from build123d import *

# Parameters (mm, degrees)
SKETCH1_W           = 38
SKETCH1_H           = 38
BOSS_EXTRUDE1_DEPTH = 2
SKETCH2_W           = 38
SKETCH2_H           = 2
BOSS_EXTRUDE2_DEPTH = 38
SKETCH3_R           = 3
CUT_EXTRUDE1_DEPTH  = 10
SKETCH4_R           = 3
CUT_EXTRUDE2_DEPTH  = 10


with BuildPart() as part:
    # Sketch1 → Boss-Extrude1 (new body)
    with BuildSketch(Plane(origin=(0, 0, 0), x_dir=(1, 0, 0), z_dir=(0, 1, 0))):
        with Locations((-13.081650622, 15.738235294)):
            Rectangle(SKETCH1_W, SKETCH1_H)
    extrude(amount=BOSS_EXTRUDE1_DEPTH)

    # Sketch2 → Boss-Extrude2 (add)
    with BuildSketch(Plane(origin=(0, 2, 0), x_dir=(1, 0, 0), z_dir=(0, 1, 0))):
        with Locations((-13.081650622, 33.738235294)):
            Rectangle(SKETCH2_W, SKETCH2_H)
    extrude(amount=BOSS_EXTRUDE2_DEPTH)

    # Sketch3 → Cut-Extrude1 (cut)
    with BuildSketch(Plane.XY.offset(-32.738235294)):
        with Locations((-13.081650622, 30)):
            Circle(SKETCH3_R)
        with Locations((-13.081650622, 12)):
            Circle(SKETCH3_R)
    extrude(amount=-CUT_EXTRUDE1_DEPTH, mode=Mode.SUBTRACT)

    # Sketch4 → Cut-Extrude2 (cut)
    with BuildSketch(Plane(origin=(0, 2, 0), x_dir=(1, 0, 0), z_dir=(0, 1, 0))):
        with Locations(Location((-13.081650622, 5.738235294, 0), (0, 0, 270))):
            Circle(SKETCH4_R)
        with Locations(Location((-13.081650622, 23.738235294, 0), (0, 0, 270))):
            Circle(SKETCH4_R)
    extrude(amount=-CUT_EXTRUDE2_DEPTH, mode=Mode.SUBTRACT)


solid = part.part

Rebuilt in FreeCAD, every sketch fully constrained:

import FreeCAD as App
import Part
import Sketcher
from FreeCAD import Vector
Q = App.Units.Quantity

doc = App.newDocument("Part")
params = doc.addObject("Spreadsheet::Sheet", "Params")
for row, (alias, value) in enumerate([
    ("sketch1_width", "38 mm"),
    ("pad1_length", "2 mm"),
    ("sketch2_width", "38 mm"),
    ("sketch2_height", "2 mm"),
    ("pad2_length", "38 mm"),
    ("sketch3_diameter", "6 mm"),
    ("pocket1_length", "10 mm"),
    ("sketch4_diameter", "6 mm"),
    ("pocket2_length", "10 mm"),
], start=1):
    params.set(f"A{row}", alias)
    params.set(f"B{row}", "=" + value)
    params.setAlias(f"B{row}", alias)

body = doc.addObject("PartDesign::Body", "Body")

# Sketch on XZ plane
sketch1 = body.newObject("Sketcher::SketchObject", "Sketch")
sketch1.AttachmentSupport = (doc.getObject("XZ_Plane"), [""])
sketch1.MapMode = "FlatFace"
sketch1.addGeometry([
    Part.LineSegment(Vector(-32, -35, 0), Vector(-32, 3, 0)),
    Part.LineSegment(Vector(-32, 3, 0), Vector(6, 3, 0)),
    Part.LineSegment(Vector(6, 3, 0), Vector(6, -35, 0)),
    Part.LineSegment(Vector(6, -35, 0), Vector(-32, -35, 0)),
], False)
sketch1.addConstraint([
    Sketcher.Constraint("Coincident", 0, 2, 1, 1),
    Sketcher.Constraint("Coincident", 1, 2, 2, 1),
    Sketcher.Constraint("Coincident", 2, 2, 3, 1),
    Sketcher.Constraint("Coincident", 3, 2, 0, 1),
    Sketcher.Constraint("Vertical", 0),
    Sketcher.Constraint("Horizontal", 1),
    Sketcher.Constraint("Vertical", 2),
    Sketcher.Constraint("Horizontal", 3),
    Sketcher.Constraint("Equal", 3, 0),
    Sketcher.Constraint("DistanceX", 1, 1, 1, 2, Q("38 mm")),
    Sketcher.Constraint("DistanceX", 0, 2, -1, 1, Q("32.081651 mm")),
    Sketcher.Constraint("DistanceY", -1, 1, 0, 2, Q("3.261765 mm")),
])
sketch1.setExpression("Constraints[9]", "Params.sketch1_width")
pad1 = body.newObject("PartDesign::Pad", "Pad")
pad1.Profile = sketch1
pad1.setExpression("Length", "Params.pad1_length")
pad1.Reversed = True

# Sketch on XZ plane
sketch2 = body.newObject("Sketcher::SketchObject", "Sketch001")
sketch2.AttachmentSupport = (doc.getObject("XZ_Plane"), [""])
sketch2.MapMode = "FlatFace"
sketch2.AttachmentOffset = App.Placement(Vector(0, 0, -2), App.Rotation())
sketch2.addGeometry([
    Part.LineSegment(Vector(-32.1, -34.7, 0), Vector(-32.1, -32.7, 0)),
    Part.LineSegment(Vector(-32.1, -32.7, 0), Vector(5.9, -32.7, 0)),
    Part.LineSegment(Vector(5.9, -32.7, 0), Vector(5.9, -34.7, 0)),
    Part.LineSegment(Vector(5.9, -34.7, 0), Vector(-32.1, -34.7, 0)),
], False)
sketch2.addConstraint([
    Sketcher.Constraint("Coincident", 0, 2, 1, 1),
    Sketcher.Constraint("Coincident", 1, 2, 2, 1),
    Sketcher.Constraint("Coincident", 2, 2, 3, 1),
    Sketcher.Constraint("Coincident", 3, 2, 0, 1),
    Sketcher.Constraint("Vertical", 0),
    Sketcher.Constraint("Horizontal", 1),
    Sketcher.Constraint("Vertical", 2),
    Sketcher.Constraint("Horizontal", 3),
    Sketcher.Constraint("DistanceX", 1, 1, 1, 2, Q("38 mm")),
    Sketcher.Constraint("DistanceY", 0, 1, 0, 2, Q("2 mm")),
    Sketcher.Constraint("DistanceX", 0, 2, -1, 1, Q("32.081651 mm")),
    Sketcher.Constraint("DistanceY", 0, 2, -1, 1, Q("32.738235 mm")),
])
sketch2.setExpression("Constraints[8]", "Params.sketch2_width")
sketch2.setExpression("Constraints[9]", "Params.sketch2_height")
pad2 = body.newObject("PartDesign::Pad", "Pad001")
pad2.Profile = sketch2
pad2.setExpression("Length", "Params.pad2_length")
pad2.Reversed = True

# Sketch on XY plane
sketch3 = body.newObject("Sketcher::SketchObject", "Sketch002")
sketch3.AttachmentSupport = (doc.getObject("XY_Plane"), [""])
sketch3.MapMode = "FlatFace"
sketch3.AttachmentOffset = App.Placement(Vector(0, 0, -32.738235), App.Rotation())
sketch3.addGeometry([
    Part.Circle(Vector(-13.1, 30, 0), Vector(0, 0, 1), 3),
    Part.Circle(Vector(-13.1, 12, 0), Vector(0, 0, 1), 3),
], False)
sketch3.addConstraint([
    Sketcher.Constraint("Equal", 0, 1),
    Sketcher.Constraint("Vertical", 0, 3, 1, 3),
    Sketcher.Constraint("Diameter", 0, Q("6 mm")),
    Sketcher.Constraint("DistanceY", -1, 1, 0, 3, Q("30 mm")),
    Sketcher.Constraint("DistanceY", -1, 1, 1, 3, Q("12 mm")),
    Sketcher.Constraint("DistanceX", 0, 3, -1, 1, Q("13.081651 mm")),
])
sketch3.setExpression("Constraints[2]", "Params.sketch3_diameter")
pocket1 = body.newObject("PartDesign::Pocket", "Pocket")
pocket1.Profile = sketch3
pocket1.setExpression("Length", "Params.pocket1_length")

# Sketch on XZ plane
sketch4 = body.newObject("Sketcher::SketchObject", "Sketch003")
sketch4.AttachmentSupport = (doc.getObject("XZ_Plane"), [""])
sketch4.MapMode = "FlatFace"
sketch4.AttachmentOffset = App.Placement(Vector(0, 0, -2), App.Rotation())
sketch4.addGeometry([
    Part.Circle(Vector(-13.1, -5.7, 0), Vector(0, 0, 1), 3),
    Part.Circle(Vector(-13.1, -23.7, 0), Vector(0, 0, 1), 3),
], False)
sketch4.addConstraint([
    Sketcher.Constraint("Equal", 0, 1),
    Sketcher.Constraint("Vertical", 0, 3, 1, 3),
    Sketcher.Constraint("Diameter", 0, Q("6 mm")),
    Sketcher.Constraint("DistanceY", 1, 3, 0, 3, Q("18 mm")),
    Sketcher.Constraint("DistanceX", 0, 3, -1, 1, Q("13.081651 mm")),
    Sketcher.Constraint("DistanceY", 0, 3, -1, 1, Q("5.738235 mm")),
])
sketch4.setExpression("Constraints[2]", "Params.sketch4_diameter")
pocket2 = body.newObject("PartDesign::Pocket", "Pocket001")
pocket2.Profile = sketch4
pocket2.setExpression("Length", "Params.pocket2_length")
pocket2.Reversed = True

doc.recompute()
